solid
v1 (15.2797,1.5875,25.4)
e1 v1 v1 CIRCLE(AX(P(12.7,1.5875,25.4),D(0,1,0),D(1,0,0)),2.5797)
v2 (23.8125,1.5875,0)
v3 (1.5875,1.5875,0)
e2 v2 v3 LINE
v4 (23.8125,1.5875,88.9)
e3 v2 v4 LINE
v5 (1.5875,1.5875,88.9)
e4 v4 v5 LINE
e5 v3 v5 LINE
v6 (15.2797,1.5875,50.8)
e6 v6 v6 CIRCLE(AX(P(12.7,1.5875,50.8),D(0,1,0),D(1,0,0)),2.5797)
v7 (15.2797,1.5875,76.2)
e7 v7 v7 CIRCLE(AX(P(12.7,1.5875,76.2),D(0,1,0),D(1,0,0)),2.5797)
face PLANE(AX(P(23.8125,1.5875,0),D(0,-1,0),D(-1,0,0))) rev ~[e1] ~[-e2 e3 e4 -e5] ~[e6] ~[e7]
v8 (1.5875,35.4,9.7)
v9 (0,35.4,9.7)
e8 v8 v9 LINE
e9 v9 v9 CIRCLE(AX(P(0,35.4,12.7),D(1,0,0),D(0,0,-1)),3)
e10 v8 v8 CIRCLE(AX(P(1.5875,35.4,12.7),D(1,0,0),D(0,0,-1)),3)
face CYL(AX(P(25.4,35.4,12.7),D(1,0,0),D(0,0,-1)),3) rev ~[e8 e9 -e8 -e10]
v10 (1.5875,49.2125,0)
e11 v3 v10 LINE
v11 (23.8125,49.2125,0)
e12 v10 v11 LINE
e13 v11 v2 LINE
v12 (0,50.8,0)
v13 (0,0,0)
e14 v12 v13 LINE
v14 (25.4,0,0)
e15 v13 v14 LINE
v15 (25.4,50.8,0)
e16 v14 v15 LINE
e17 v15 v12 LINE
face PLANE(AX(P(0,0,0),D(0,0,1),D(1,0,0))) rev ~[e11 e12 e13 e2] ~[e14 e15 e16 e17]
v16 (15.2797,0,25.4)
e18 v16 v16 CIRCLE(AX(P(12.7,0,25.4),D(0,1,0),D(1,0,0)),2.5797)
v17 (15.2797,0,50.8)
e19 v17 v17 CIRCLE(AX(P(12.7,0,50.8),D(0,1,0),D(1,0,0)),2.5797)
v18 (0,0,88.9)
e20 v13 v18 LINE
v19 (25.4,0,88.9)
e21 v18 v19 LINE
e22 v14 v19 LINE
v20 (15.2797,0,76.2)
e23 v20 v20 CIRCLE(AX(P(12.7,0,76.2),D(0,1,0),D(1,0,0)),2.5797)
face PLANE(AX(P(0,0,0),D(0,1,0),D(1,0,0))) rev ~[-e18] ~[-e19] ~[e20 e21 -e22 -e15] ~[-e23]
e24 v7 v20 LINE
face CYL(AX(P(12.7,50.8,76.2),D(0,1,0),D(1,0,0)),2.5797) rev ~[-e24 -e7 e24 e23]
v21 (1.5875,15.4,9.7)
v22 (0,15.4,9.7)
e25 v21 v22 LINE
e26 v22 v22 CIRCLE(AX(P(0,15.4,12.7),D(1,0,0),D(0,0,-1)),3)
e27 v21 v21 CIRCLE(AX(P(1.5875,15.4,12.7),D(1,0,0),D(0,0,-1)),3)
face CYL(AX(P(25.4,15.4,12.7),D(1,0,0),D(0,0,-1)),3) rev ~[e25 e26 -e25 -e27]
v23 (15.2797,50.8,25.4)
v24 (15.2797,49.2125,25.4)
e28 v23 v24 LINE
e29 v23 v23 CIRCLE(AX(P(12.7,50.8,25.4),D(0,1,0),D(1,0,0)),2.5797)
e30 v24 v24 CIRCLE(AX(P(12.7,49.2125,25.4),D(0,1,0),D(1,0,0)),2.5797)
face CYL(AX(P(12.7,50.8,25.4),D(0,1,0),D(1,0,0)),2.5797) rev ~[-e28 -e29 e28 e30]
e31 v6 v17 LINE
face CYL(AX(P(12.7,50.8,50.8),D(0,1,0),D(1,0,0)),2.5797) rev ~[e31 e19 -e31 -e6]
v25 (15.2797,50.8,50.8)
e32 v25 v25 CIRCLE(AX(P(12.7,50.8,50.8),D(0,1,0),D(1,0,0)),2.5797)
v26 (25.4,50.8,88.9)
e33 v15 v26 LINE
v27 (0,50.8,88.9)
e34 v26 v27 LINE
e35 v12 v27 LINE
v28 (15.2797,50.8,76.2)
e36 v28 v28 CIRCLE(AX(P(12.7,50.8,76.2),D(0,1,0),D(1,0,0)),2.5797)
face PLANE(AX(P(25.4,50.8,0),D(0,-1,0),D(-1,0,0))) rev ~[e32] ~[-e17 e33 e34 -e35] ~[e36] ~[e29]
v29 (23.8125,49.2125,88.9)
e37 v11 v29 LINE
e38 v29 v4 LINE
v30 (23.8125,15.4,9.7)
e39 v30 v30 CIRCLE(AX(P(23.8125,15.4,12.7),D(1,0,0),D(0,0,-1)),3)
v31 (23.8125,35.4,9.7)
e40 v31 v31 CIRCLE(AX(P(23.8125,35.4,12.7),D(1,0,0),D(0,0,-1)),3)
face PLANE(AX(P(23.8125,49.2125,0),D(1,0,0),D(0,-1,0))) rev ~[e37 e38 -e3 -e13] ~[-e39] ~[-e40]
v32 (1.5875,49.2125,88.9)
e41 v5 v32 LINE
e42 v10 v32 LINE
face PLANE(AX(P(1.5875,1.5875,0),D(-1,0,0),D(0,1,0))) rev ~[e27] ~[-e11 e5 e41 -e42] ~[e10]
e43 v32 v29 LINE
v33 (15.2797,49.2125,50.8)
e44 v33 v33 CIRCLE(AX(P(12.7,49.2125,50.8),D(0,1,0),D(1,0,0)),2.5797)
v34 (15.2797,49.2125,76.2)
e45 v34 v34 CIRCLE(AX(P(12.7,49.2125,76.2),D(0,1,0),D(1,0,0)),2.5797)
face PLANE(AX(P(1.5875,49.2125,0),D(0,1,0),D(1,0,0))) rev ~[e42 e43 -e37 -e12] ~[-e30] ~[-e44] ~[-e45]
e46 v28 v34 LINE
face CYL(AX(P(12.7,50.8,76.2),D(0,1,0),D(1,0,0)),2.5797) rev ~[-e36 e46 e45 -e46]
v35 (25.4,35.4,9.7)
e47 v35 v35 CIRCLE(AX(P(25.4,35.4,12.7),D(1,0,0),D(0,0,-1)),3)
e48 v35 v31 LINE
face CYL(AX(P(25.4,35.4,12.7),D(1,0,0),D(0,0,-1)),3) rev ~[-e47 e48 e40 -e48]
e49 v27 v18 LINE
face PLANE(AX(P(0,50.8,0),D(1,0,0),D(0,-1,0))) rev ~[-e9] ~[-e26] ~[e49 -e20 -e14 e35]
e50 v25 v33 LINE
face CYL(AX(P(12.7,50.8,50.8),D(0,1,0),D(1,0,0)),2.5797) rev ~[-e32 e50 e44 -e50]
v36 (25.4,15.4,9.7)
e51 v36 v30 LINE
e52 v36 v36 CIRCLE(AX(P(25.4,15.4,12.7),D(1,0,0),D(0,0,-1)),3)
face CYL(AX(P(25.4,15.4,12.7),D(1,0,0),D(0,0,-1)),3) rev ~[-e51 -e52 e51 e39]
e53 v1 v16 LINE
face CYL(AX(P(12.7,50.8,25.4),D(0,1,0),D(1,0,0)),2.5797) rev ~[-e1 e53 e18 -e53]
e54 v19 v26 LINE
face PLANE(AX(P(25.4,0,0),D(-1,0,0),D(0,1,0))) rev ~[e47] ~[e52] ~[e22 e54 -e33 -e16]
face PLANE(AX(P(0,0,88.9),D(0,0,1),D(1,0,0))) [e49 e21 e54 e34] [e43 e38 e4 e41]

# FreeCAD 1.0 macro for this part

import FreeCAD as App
import Part
import Sketcher
Q = App.Units.Quantity

doc = App.newDocument("Part")
params = doc.addObject("Spreadsheet::Sheet", "Params")
for row, (alias, value) in enumerate([
    ("sketch1_width", "1 in"),
    ("sketch1_height", "2 in"),
    ("pad1_length", "3.5 in"),
    ("pocket1_length", "3.5 in"),
    ("sketch3_diameter", "0.203126 in"),
    ("pocket2_length", "3.5 in"),
], start=1):
    params.set(f"A{row}", alias)
    params.set(f"B{row}", "=" + value)
    params.setAlias(f"B{row}", alias)

body = doc.addObject("PartDesign::Body", "Body")

sketch1 = body.newObject("Sketcher::SketchObject", "Sketch")
sketch1.AttachmentSupport = (doc.getObject("XY_Plane"), [""])
sketch1.MapMode = "FlatFace"
sketch1.addGeometry([
    Part.LineSegment(App.Vector(0, 51, 0), App.Vector(0, 0, 0)),
    Part.LineSegment(App.Vector(0, 0, 0), App.Vector(25, 0, 0)),
    Part.LineSegment(App.Vector(25, 0, 0), App.Vector(25, 51, 0)),
    Part.LineSegment(App.Vector(25, 51, 0), App.Vector(0, 51, 0)),
    Part.LineSegment(App.Vector(2, 2, 0), App.Vector(2, 49, 0)),
    Part.LineSegment(App.Vector(2, 49, 0), App.Vector(24, 49, 0)),
    Part.LineSegment(App.Vector(24, 49, 0), App.Vector(24, 2, 0)),
    Part.LineSegment(App.Vector(24, 2, 0), App.Vector(2, 2, 0)),
], False)
sketch1.addConstraint([
    Sketcher.Constraint("Coincident", 0, 2, 1, 1),
    Sketcher.Constraint("Coincident", 1, 2, 2, 1),
    Sketcher.Constraint("Coincident", 2, 2, 3, 1),
    Sketcher.Constraint("Coincident", 3, 2, 0, 1),
    Sketcher.Constraint("Coincident", 4, 2, 5, 1),
    Sketcher.Constraint("Coincident", 5, 2, 6, 1),
    Sketcher.Constraint("Coincident", 6, 2, 7, 1),
    Sketcher.Constraint("Coincident", 7, 2, 4, 1),
    Sketcher.Constraint("Vertical", 0),
    Sketcher.Constraint("Horizontal", 1),
    Sketcher.Constraint("Vertical", 2),
    Sketcher.Constraint("Horizontal", 3),
    Sketcher.Constraint("Vertical", 4),
    Sketcher.Constraint("Horizontal", 5),
    Sketcher.Constraint("Vertical", 6),
    Sketcher.Constraint("Horizontal", 7),
    Sketcher.Constraint("Coincident", 0, 2, -1, 1),
    Sketcher.Constraint("DistanceX", 1, 1, 1, 2, Q("1 in")),
    Sketcher.Constraint("DistanceY", 0, 2, 0, 1, Q("2 in")),
    Sketcher.Constraint("DistanceX", -1, 1, 4, 2, Q("0.0625 in")),
    Sketcher.Constraint("DistanceY", -1, 1, 6, 2, Q("0.0625 in")),
    Sketcher.Constraint("DistanceY", 4, 2, 3, 2, Q("0.0625 in")),
    Sketcher.Constraint("DistanceX", 5, 2, 2, 2, Q("0.0625 in")),
])
sketch1.setExpression("Constraints[17]", "Params.sketch1_width")
sketch1.setExpression("Constraints[18]", "Params.sketch1_height")
pad1 = body.newObject("PartDesign::Pad", "Pad")
pad1.Profile = sketch1
pad1.setExpression("Length", "Params.pad1_length")

sketch2 = body.newObject("Sketcher::SketchObject", "Sketch001")
sketch2.AttachmentSupport = (doc.getObject("YZ_Plane"), [""])
sketch2.MapMode = "FlatFace"
sketch2.AttachmentOffset = App.Placement(App.Vector(0, 0, 1 * 25.4), App.Rotation())
sketch2.addGeometry([
    Part.Circle(App.Vector(35.4, 12.7, 0), App.Vector(0, 0, 1), 3),
    Part.Circle(App.Vector(15.4, 12.7, 0), App.Vector(0, 0, 1), 3),
], False)
sketch2.addConstraint([
    Sketcher.Constraint("Equal", 0, 1),
    Sketcher.Constraint("Horizontal", 0, 3, 1, 3),
    Sketcher.Constraint("DistanceY", -1, 1, 0, 3, Q("0.5 in")),
    Sketcher.Constraint("Diameter", 0, 6.0),
    Sketcher.Constraint("DistanceX", 1, 3, 0, 3, Q("0.7874 in")),
    Sketcher.Constraint("DistanceX", -1, 1, 0, 3, Q("1.3937 in")),
])
pocket1 = body.newObject("PartDesign::Pocket", "Pocket")
pocket1.Profile = sketch2
pocket1.setExpression("Length", "Params.pocket1_length")

sketch3 = body.newObject("Sketcher::SketchObject", "Sketch002")
sketch3.AttachmentSupport = (doc.getObject("XZ_Plane"), [""])
sketch3.MapMode = "FlatFace"
sketch3.AttachmentOffset = App.Placement(App.Vector(0, 0, -2 * 25.4), App.Rotation())
sketch3.addGeometry([
    Part.Circle(App.Vector(12.7, 76.2, 0), App.Vector(0, 0, 1), 2.6),
    Part.Circle(App.Vector(12.7, 50.8, 0), App.Vector(0, 0, 1), 2.6),
    Part.Circle(App.Vector(12.7, 25.4, 0), App.Vector(0, 0, 1), 2.6),
], False)
sketch3.addConstraint([
    Sketcher.Constraint("Equal", 0, 1),
    Sketcher.Constraint("Equal", 1, 2),
    Sketcher.Constraint("Vertical", 0, 3, 1, 3),
    Sketcher.Constraint("Vertical", 1, 3, 2, 3),
    Sketcher.Constraint("Diameter", 0, Q("0.203126 in")),
    Sketcher.Constraint("DistanceY", -1, 1, 2, 3, Q("1 in")),
    Sketcher.Constraint("DistanceY", 1, 3, 0, 3, Q("1 in")),
    Sketcher.Constraint("DistanceY", 2, 3, 1, 3, Q("1 in")),
    Sketcher.Constraint("DistanceX", -1, 1, 0, 3, Q("0.5 in")),
])
sketch3.setExpression("Constraints[4]", "Params.sketch3_diameter")
pocket2 = body.newObject("PartDesign::Pocket", "Pocket001")
pocket2.Profile = sketch3
pocket2.setExpression("Length", "Params.pocket2_length")
pocket2.Reversed = True

doc.recompute()
